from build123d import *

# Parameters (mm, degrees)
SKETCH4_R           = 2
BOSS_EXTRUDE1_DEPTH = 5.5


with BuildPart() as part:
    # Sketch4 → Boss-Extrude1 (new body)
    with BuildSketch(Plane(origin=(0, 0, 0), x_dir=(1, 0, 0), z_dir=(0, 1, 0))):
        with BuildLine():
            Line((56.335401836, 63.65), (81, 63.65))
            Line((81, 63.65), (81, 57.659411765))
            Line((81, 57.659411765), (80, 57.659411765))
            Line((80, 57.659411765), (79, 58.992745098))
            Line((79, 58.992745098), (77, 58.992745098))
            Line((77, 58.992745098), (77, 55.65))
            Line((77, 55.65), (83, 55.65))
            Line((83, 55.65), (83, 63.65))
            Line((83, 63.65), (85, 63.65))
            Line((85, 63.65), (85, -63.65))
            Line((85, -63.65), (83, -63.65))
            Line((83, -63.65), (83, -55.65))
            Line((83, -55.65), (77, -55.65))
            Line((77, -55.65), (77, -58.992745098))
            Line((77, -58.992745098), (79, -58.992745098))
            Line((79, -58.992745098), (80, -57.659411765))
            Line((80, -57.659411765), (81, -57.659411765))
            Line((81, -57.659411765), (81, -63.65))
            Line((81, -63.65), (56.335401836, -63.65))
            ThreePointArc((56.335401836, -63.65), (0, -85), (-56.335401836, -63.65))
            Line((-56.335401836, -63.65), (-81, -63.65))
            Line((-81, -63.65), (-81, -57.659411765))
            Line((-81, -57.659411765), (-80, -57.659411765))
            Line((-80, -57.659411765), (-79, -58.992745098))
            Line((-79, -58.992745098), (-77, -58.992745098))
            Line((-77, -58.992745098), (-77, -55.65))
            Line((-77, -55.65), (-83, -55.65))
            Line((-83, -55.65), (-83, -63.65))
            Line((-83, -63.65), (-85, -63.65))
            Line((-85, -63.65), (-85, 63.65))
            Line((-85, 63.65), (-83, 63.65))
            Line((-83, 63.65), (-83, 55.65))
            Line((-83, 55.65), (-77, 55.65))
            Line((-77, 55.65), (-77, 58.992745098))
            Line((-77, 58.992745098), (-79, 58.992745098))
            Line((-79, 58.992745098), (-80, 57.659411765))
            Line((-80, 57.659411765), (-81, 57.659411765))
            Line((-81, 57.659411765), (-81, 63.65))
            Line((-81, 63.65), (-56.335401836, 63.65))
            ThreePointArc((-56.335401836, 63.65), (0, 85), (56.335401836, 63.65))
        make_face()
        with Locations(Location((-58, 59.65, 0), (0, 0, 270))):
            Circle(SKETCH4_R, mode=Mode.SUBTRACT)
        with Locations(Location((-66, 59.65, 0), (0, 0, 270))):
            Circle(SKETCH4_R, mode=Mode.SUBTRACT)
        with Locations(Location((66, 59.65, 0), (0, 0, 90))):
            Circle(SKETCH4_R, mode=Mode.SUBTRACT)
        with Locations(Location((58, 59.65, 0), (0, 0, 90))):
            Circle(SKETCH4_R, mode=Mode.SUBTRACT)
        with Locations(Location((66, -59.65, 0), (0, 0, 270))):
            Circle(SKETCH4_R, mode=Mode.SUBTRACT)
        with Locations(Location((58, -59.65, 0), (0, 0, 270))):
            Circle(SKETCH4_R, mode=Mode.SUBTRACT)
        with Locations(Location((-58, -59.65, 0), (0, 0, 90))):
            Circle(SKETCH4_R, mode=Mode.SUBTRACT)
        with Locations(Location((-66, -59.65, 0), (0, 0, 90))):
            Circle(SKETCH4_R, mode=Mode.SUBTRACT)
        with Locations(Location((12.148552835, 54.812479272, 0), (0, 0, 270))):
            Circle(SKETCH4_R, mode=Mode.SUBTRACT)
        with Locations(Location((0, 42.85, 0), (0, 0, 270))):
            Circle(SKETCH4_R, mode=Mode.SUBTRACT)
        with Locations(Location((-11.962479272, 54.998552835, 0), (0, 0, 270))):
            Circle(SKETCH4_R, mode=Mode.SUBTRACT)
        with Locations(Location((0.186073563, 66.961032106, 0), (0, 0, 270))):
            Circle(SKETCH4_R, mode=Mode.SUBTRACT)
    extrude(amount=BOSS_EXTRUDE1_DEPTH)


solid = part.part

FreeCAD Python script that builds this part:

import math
import FreeCAD as App
import Part
import Sketcher

V = App.Vector

doc = App.newDocument("Part")
body = doc.addObject("PartDesign::Body", "Body")

sketch1 = body.newObject("Sketcher::SketchObject", "Sketch")
sketch1.AttachmentSupport = (doc.getObject("XZ_Plane"), [""])
sketch1.MapMode = "FlatFace"
sketch1.addGeometry([
    Part.LineSegment(V(81, -63.6, 0), V(56.3, -63.6, 0)),
    Part.ArcOfCircle(Part.Circle(V(0, 0, 0), V(0, 0, 1), 85), math.radians(-132), math.radians(-48)),
    Part.LineSegment(V(-56.3, -63.6, 0), V(-81, -63.6, 0)),
    Part.LineSegment(V(-81, -63.6, 0), V(-81, -57.7, 0)),
    Part.LineSegment(V(-81, -57.7, 0), V(-80, -57.7, 0)),
    Part.LineSegment(V(-80, -57.7, 0), V(-79, -59, 0)),
    Part.LineSegment(V(-79, -59, 0), V(-77, -59, 0)),
    Part.LineSegment(V(-77, -59, 0), V(-77, -55.6, 0)),
    Part.LineSegment(V(-77, -55.6, 0), V(-83, -55.6, 0)),
    Part.LineSegment(V(-83, -55.6, 0), V(-83, -63.6, 0)),
    Part.LineSegment(V(-83, -63.6, 0), V(-85, -63.6, 0)),
    Part.LineSegment(V(-85, -63.6, 0), V(-85, 63.6, 0)),
    Part.LineSegment(V(-85, 63.6, 0), V(-83, 63.6, 0)),
    Part.LineSegment(V(-83, 63.6, 0), V(-83, 55.6, 0)),
    Part.LineSegment(V(-83, 55.6, 0), V(-77, 55.6, 0)),
    Part.LineSegment(V(-77, 55.6, 0), V(-77, 59, 0)),
    Part.LineSegment(V(-77, 59, 0), V(-79, 59, 0)),
    Part.LineSegment(V(-79, 59, 0), V(-80, 57.7, 0)),
    Part.LineSegment(V(-80, 57.7, 0), V(-81, 57.7, 0)),
    Part.LineSegment(V(-81, 57.7, 0), V(-81, 63.6, 0)),
    Part.LineSegment(V(-81, 63.6, 0), V(-56.3, 63.6, 0)),
    Part.ArcOfCircle(Part.Circle(V(0, 0, 0), V(0, 0, 1), 85), math.radians(48), math.radians(132)),
    Part.LineSegment(V(56.3, 63.6, 0), V(81, 63.6, 0)),
    Part.LineSegment(V(81, 63.6, 0), V(81, 57.7, 0)),
    Part.LineSegment(V(81, 57.7, 0), V(80, 57.7, 0)),
    Part.LineSegment(V(80, 57.7, 0), V(79, 59, 0)),
    Part.LineSegment(V(79, 59, 0), V(77, 59, 0)),
    Part.LineSegment(V(77, 59, 0), V(77, 55.6, 0)),
    Part.LineSegment(V(77, 55.6, 0), V(83, 55.6, 0)),
    Part.LineSegment(V(83, 55.6, 0), V(83, 63.6, 0)),
    Part.LineSegment(V(83, 63.6, 0), V(85, 63.6, 0)),
    Part.LineSegment(V(85, 63.6, 0), V(85, -63.6, 0)),
    Part.LineSegment(V(85, -63.6, 0), V(83, -63.6, 0)),
    Part.LineSegment(V(83, -63.6, 0), V(83, -55.6, 0)),
    Part.LineSegment(V(83, -55.6, 0), V(77, -55.6, 0)),
    Part.LineSegment(V(77, -55.6, 0), V(77, -59, 0)),
    Part.LineSegment(V(77, -59, 0), V(79, -59, 0)),
    Part.LineSegment(V(79, -59, 0), V(80, -57.7, 0)),
    Part.LineSegment(V(80, -57.7, 0), V(81, -57.7, 0)),
    Part.LineSegment(V(81, -57.7, 0), V(81, -63.6, 0)),
    Part.Circle(V(66, 59.6, 0), V(0, 0, 1), 2),
    Part.Circle(V(58, 59.6, 0), V(0, 0, 1), 2),
    Part.Circle(V(-58, 59.6, 0), V(0, 0, 1), 2),
    Part.Circle(V(-66, 59.6, 0), V(0, 0, 1), 2),
    Part.Circle(V(66, -59.6, 0), V(0, 0, 1), 2),
    Part.Circle(V(58, -59.6, 0), V(0, 0, 1), 2),
    Part.Circle(V(12.1, -54.8, 0), V(0, 0, 1), 2),
    Part.Circle(V(0.2, -67, 0), V(0, 0, 1), 2),
    Part.Circle(V(0, -42.9, 0), V(0, 0, 1), 2),
    Part.Circle(V(-12, -55, 0), V(0, 0, 1), 2),
    Part.Circle(V(-58, -59.6, 0), V(0, 0, 1), 2),
    Part.Circle(V(-66, -59.6, 0), V(0, 0, 1), 2),
], False)
sketch1.addConstraint([
    Sketcher.Constraint("Coincident", 0, 2, 1, 2),
    Sketcher.Constraint("Coincident", 1, 1, 2, 1),
    Sketcher.Constraint("Coincident", 2, 2, 3, 1),
    Sketcher.Constraint("Coincident", 3, 2, 4, 1),
    Sketcher.Constraint("Coincident", 4, 2, 5, 1),
    Sketcher.Constraint("Coincident", 5, 2, 6, 1),
    Sketcher.Constraint("Coincident", 6, 2, 7, 1),
    Sketcher.Constraint("Coincident", 7, 2, 8, 1),
    Sketcher.Constraint("Coincident", 8, 2, 9, 1),
    Sketcher.Constraint("Coincident", 9, 2, 10, 1),
    Sketcher.Constraint("Coincident", 10, 2, 11, 1),
    Sketcher.Constraint("Coincident", 11, 2, 12, 1),
    Sketcher.Constraint("Coincident", 12, 2, 13, 1),
    Sketcher.Constraint("Coincident", 13, 2, 14, 1),
    Sketcher.Constraint("Coincident", 14, 2, 15, 1),
    Sketcher.Constraint("Coincident", 15, 2, 16, 1),
    Sketcher.Constraint("Coincident", 16, 2, 17, 1),
    Sketcher.Constraint("Coincident", 17, 2, 18, 1),
    Sketcher.Constraint("Coincident", 18, 2, 19, 1),
    Sketcher.Constraint("Coincident", 19, 2, 20, 1),
    Sketcher.Constraint("Coincident", 20, 2, 21, 2),
    Sketcher.Constraint("Coincident", 21, 1, 22, 1),
    Sketcher.Constraint("Coincident", 22, 2, 23, 1),
    Sketcher.Constraint("Coincident", 23, 2, 24, 1),
    Sketcher.Constraint("Coincident", 24, 2, 25, 1),
    Sketcher.Constraint("Coincident", 25, 2, 26, 1),
    Sketcher.Constraint("Coincident", 26, 2, 27, 1),
    Sketcher.Constraint("Coincident", 27, 2, 28, 1),
    Sketcher.Constraint("Coincident", 28, 2, 29, 1),
    Sketcher.Constraint("Coincident", 29, 2, 30, 1),
    Sketcher.Constraint("Coincident", 30, 2, 31, 1),
    Sketcher.Constraint("Coincident", 31, 2, 32, 1),
    Sketcher.Constraint("Coincident", 32, 2, 33, 1),
    Sketcher.Constraint("Coincident", 33, 2, 34, 1),
    Sketcher.Constraint("Coincident", 34, 2, 35, 1),
    Sketcher.Constraint("Coincident", 35, 2, 36, 1),
    Sketcher.Constraint("Coincident", 36, 2, 37, 1),
    Sketcher.Constraint("Coincident", 37, 2, 38, 1),
    Sketcher.Constraint("Coincident", 38, 2, 39, 1),
    Sketcher.Constraint("Coincident", 39, 2, 0, 1),
    Sketcher.Constraint("Horizontal", 0),
    Sketcher.Constraint("Horizontal", 2),
    Sketcher.Constraint("Vertical", 3),
    Sketcher.Constraint("Horizontal", 4),
    Sketcher.Constraint("Horizontal", 6),
    Sketcher.Constraint("Vertical", 7),
    Sketcher.Constraint("Horizontal", 8),
    Sketcher.Constraint("Vertical", 9),
    Sketcher.Constraint("Horizontal", 10),
    Sketcher.Constraint("Vertical", 11),
    Sketcher.Constraint("Horizontal", 12),
    Sketcher.Constraint("Vertical", 13),
    Sketcher.Constraint("Horizontal", 14),
    Sketcher.Constraint("Vertical", 15),
    Sketcher.Constraint("Horizontal", 16),
    Sketcher.Constraint("Horizontal", 18),
    Sketcher.Constraint("Vertical", 19),
    Sketcher.Constraint("Horizontal", 20),
    Sketcher.Constraint("Horizontal", 22),
    Sketcher.Constraint("Vertical", 23),
    Sketcher.Constraint("Horizontal", 24),
    Sketcher.Constraint("Horizontal", 26),
    Sketcher.Constraint("Vertical", 27),
    Sketcher.Constraint("Horizontal", 28),
    Sketcher.Constraint("Vertical", 29),
    Sketcher.Constraint("Horizontal", 30),
    Sketcher.Constraint("Vertical", 31),
    Sketcher.Constraint("Horizontal", 32),
    Sketcher.Constraint("Vertical", 33),
    Sketcher.Constraint("Horizontal", 34),
    Sketcher.Constraint("Vertical", 35),
    Sketcher.Constraint("Horizontal", 36),
    Sketcher.Constraint("Horizontal", 38),
    Sketcher.Constraint("Vertical", 39),
    Sketcher.Constraint("Coincident", 1, 3, -1, 1),
    Sketcher.Constraint("Coincident", 21, 3, -1, 1),
    Sketcher.Constraint("Equal", 1, 21),
    Sketcher.Constraint("Equal", 40, 41),
    Sketcher.Constraint("Equal", 41, 42),
    Sketcher.Constraint("Equal", 42, 43),
    Sketcher.Constraint("Equal", 43, 44),
    Sketcher.Constraint("Equal", 44, 45),
    Sketcher.Constraint("Equal", 45, 46),
    Sketcher.Constraint("Equal", 46, 47),
    Sketcher.Constraint("Equal", 47, 48),
    Sketcher.Constraint("Equal", 48, 49),
    Sketcher.Constraint("Equal", 49, 50),
    Sketcher.Constraint("Equal", 50, 51),
    Sketcher.Constraint("Symmetric", 43, 3, 44, 3, -1, 1),
    Sketcher.Constraint("Symmetric", 42, 3, 45, 3, -1, 1),
    Sketcher.Constraint("Symmetric", 41, 3, 50, 3, -1, 1),
    Sketcher.Constraint("Symmetric", 40, 3, 51, 3, -1, 1),
    Sketcher.Constraint("Symmetric", 2, 2, 22, 2, -1, 1),
    Sketcher.Constraint("Symmetric", 4, 2, 24, 2, -1, 1),
    Sketcher.Constraint("Symmetric", 5, 2, 25, 2, -1, 1),
    Sketcher.Constraint("Symmetric", 7, 2, 27, 2, -1, 1),
    Sketcher.Constraint("Symmetric", 9, 2, 29, 2, -1, 1),
    Sketcher.Constraint("Symmetric", 11, 2, 31, 2, -1, 1),
    Sketcher.Constraint("Symmetric", 13, 2, 33, 2, -1, 1),
    Sketcher.Constraint("Symmetric", 15, 2, 35, 2, -1, 1),
    Sketcher.Constraint("Symmetric", 17, 2, 37, 2, -1, 1),
    Sketcher.Constraint("Symmetric", 19, 2, 39, 2, -1, 1),
    Sketcher.Constraint("Symmetric", 41, 3, 42, 3, -2),
    Sketcher.Constraint("Symmetric", 40, 3, 43, 3, -2),
    Sketcher.Constraint("Symmetric", 19, 2, 22, 2, -2),
    Sketcher.Constraint("Symmetric", 17, 2, 24, 2, -2),
    Sketcher.Constraint("Symmetric", 16, 2, 25, 2, -2),
    Sketcher.Constraint("Symmetric", 14, 2, 27, 2, -2),
    Sketcher.Constraint("Symmetric", 12, 2, 29, 2, -2),
    Sketcher.Constraint("PointOnObject", 48, 3, -2),
    Sketcher.Constraint("Parallel", 17, 37),
    Sketcher.Constraint("Horizontal", 40, 3, 41, 3),
    Sketcher.Constraint("Horizontal", 2, 2, 9, 2),
    Sketcher.Constraint("Equal", 6, 10),
    Sketcher.Constraint("Diameter", 40, 4.0),
    Sketcher.Constraint("Radius", 1, 85.0),
    Sketcher.Constraint("DistanceX", 4, 1, 4, 2, 1.0),
    Sketcher.Constraint("DistanceX", 6, 1, 6, 2, 2.0),
    Sketcher.Constraint("DistanceX", 8, 2, 8, 1, 6.0),
    Sketcher.Constraint("DistanceY", 9, 2, 9, 1, 8.0),
    Sketcher.Constraint("DistanceY", 11, 1, 11, 2, 127.3),
    Sketcher.Constraint("DistanceX", -1, 1, 40, 3, 66.0),
    Sketcher.Constraint("DistanceX", -1, 1, 41, 3, 58.0),
    Sketcher.Constraint("DistanceX", 2, 2, -1, 1, 81.0),
    Sketcher.Constraint("DistanceX", 5, 2, -1, 1, 79.0),
    Sketcher.Constraint("DistanceY", 0, 2, 45, 3, 4.0),
    Sketcher.Constraint("DistanceY", 45, 3, 48, 3, 16.8),
    Sketcher.Constraint("DistanceY", 3, 1, 3, 2, 5.990588),
    Sketcher.Constraint("DistanceY", 7, 1, 7, 2, 3.342745),
    Sketcher.Constraint("DistanceY", 46, 3, -1, 1, 54.812479),
    Sketcher.Constraint("DistanceX", 49, 3, -1, 1, 11.962479),
    Sketcher.Constraint("DistanceX", 47, 3, 46, 3, 11.962479),
    Sketcher.Constraint("DistanceY", 47, 3, 49, 3, 11.962479),
    Sketcher.Constraint("DistanceX", 46, 3, 0, 2, 44.186849),
    Sketcher.Constraint("DistanceY", 3, 2, 49, 3, 2.660859),
])
pad1 = body.newObject("PartDesign::Pad", "Pad")
pad1.Profile = sketch1
pad1.Length = 5.5
pad1.Reversed = True

doc.recompute()
